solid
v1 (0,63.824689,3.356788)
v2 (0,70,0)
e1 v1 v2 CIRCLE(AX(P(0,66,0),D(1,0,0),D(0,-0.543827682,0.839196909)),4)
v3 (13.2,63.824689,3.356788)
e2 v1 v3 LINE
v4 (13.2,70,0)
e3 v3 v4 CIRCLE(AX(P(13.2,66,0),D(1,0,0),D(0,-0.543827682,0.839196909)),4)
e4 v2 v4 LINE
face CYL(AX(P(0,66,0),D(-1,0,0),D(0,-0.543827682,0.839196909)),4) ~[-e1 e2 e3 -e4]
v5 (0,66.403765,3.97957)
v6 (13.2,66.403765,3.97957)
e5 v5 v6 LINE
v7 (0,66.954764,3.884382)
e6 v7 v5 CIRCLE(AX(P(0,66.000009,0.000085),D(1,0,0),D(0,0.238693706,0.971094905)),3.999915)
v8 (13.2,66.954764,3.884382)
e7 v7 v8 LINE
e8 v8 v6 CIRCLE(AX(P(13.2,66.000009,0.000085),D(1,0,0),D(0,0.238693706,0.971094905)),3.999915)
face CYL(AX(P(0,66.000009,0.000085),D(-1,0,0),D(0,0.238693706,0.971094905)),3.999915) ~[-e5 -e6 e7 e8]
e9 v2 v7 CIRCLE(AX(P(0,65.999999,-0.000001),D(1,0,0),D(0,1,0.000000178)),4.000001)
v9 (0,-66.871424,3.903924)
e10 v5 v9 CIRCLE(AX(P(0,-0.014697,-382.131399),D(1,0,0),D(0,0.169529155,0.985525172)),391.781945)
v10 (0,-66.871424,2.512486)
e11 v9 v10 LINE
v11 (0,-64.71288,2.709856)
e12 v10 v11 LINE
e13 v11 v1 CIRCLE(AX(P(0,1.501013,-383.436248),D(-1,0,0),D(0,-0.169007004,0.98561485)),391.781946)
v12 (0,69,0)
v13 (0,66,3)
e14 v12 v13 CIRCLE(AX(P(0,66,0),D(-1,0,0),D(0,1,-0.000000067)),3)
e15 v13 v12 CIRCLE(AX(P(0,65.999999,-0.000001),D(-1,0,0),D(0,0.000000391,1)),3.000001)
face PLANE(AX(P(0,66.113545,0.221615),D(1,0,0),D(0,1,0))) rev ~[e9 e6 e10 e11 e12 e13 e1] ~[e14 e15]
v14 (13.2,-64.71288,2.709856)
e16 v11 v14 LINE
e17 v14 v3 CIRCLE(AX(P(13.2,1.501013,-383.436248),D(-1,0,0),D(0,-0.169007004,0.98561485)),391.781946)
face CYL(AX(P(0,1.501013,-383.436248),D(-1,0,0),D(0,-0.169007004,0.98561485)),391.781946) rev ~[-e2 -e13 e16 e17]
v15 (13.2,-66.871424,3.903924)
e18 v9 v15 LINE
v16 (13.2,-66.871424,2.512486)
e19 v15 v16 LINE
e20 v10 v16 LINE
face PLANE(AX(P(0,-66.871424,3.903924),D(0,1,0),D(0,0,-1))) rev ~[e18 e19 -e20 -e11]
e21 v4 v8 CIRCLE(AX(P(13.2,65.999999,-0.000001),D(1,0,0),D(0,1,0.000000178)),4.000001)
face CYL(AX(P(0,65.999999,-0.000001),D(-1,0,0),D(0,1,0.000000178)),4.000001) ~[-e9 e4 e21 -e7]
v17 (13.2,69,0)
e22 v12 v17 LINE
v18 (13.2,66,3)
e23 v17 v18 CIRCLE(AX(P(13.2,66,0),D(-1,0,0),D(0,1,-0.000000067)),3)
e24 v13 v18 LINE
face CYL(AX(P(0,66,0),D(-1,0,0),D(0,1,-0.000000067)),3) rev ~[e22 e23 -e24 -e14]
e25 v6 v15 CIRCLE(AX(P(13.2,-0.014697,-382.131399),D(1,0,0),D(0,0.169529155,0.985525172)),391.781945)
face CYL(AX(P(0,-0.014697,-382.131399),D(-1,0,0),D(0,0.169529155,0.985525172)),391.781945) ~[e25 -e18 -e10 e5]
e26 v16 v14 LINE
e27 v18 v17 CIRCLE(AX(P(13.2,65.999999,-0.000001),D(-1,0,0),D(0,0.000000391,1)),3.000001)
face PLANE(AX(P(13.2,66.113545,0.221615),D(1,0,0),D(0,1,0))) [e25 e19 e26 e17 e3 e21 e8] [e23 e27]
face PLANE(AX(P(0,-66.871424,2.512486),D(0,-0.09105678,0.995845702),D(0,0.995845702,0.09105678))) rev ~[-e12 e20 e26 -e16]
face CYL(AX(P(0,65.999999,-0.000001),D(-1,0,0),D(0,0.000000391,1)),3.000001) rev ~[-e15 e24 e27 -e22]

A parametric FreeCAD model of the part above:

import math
import FreeCAD as App
import Part
import Sketcher
from FreeCAD import Vector

doc = App.newDocument("Part")
body = doc.addObject("PartDesign::Body", "Body")

sketch1 = doc.addObject("Sketcher::SketchObject", "Sketch")
body.addObject(sketch1)
sketch1.AttachmentSupport = (doc.YZ_Plane, [""])
sketch1.MapMode = "FlatFace"
sketch1.addGeometry([
    Part.ArcOfCircle(Part.Circle(Vector(66, 0, 0), Vector(0, 0, 1), 4), math.radians(122.944588), math.radians(359.999997)),
    Part.ArcOfCircle(Part.Circle(Vector(65.999999, -0.000001, 0), Vector(0, 0, 1), 4.000001), math.radians(0.00001), math.radians(76.190699)),
    Part.ArcOfCircle(Part.Circle(Vector(66.000009, 0.000085, 0), Vector(0, 0, 1), 3.999915), math.radians(76.190545), math.radians(84.206638)),
    Part.ArcOfCircle(Part.Circle(Vector(-0.014697, -382.131399, 0), Vector(0, 0, 1), 391.781945), math.radians(80.239556), math.radians(99.825486)),
    Part.LineSegment(Vector(-66.871424, 3.903924, 0), Vector(-66.871424, 2.512486, 0)),
    Part.LineSegment(Vector(-66.871424, 2.512486, 0), Vector(-64.71288, 2.709856, 0)),
    Part.ArcOfCircle(Part.Circle(Vector(1.501013, -383.436248, 0), Vector(0, 0, 1), 391.781946), math.radians(80.846647), math.radians(99.730089)),
    Part.ArcOfCircle(Part.Circle(Vector(65.999999, -0.000001, 0), Vector(0, 0, 1), 3.000001), math.radians(0.000022), math.radians(89.999978)),
    Part.ArcOfCircle(Part.Circle(Vector(66, 0, 0), Vector(0, 0, 1), 3), math.radians(90.000004), math.radians(359.999996)),
], False)
sketch1.addConstraint([
    Sketcher.Constraint("Tangent", 0, 2, 1, 1),
    Sketcher.Constraint("Coincident", 1, 2, 2, 1),
    Sketcher.Constraint("Coincident", 2, 2, 3, 1),
    Sketcher.Constraint("Coincident", 3, 2, 4, 1),
    Sketcher.Constraint("Coincident", 4, 2, 5, 1),
    Sketcher.Constraint("Coincident", 5, 2, 6, 2),
    Sketcher.Constraint("Coincident", 6, 1, 0, 1),
    Sketcher.Constraint("Tangent", 7, 1, 8, 2),
    Sketcher.Constraint("Coincident", 8, 1, 7, 2),
    Sketcher.Constraint("Vertical", 4),
    Sketcher.Constraint("Coincident", 7, 3, 0, 3),
    Sketcher.Constraint("Equal", 0, 1),
    Sketcher.Constraint("Equal", 3, 6),
    Sketcher.Constraint("PointOnObject", 0, 3, -1),
    Sketcher.Constraint("PointOnObject", 0, 2, -1),
    Sketcher.Constraint("PointOnObject", 7, 1, -1),
    Sketcher.Constraint("Vertical", 7, 3, 8, 1),
    Sketcher.Constraint("Radius", 0, 4.0),
    Sketcher.Constraint("Radius", 7, 3.000001),
    Sketcher.Constraint("DistanceX", -1, 1, 0, 3, 66.0),
    Sketcher.Constraint("Radius", 2, 3.999915),
    Sketcher.Constraint("Radius", 3, 391.781945),
    Sketcher.Constraint("DistanceX", 2, 2, 1, 2, 0.550999),
    Sketcher.Constraint("DistanceY", 3, 3, -1, 1, 382.131399),
    Sketcher.Constraint("Distance", 5, 2.167549),
    Sketcher.Constraint("DistanceY", 4, 2, 4, 1, 1.391438),
    Sketcher.Constraint("DistanceX", -1, 1, 2, 3, 66.000009),
    Sketcher.Constraint("DistanceY", 6, 3, -1, 1, 383.436248),
    Sketcher.Constraint("DistanceY", -1, 1, 1, 2, 3.884382),
    Sketcher.Constraint("DistanceX", 5, 2, -1, 1, 64.71288),
    Sketcher.Constraint("DistanceX", 3, 3, 6, 3, 1.51571),
])
pad1 = doc.addObject("PartDesign::Pad", "Pad")
body.addObject(pad1)
pad1.Profile = sketch1
pad1.Length = 13.2

doc.recompute()
